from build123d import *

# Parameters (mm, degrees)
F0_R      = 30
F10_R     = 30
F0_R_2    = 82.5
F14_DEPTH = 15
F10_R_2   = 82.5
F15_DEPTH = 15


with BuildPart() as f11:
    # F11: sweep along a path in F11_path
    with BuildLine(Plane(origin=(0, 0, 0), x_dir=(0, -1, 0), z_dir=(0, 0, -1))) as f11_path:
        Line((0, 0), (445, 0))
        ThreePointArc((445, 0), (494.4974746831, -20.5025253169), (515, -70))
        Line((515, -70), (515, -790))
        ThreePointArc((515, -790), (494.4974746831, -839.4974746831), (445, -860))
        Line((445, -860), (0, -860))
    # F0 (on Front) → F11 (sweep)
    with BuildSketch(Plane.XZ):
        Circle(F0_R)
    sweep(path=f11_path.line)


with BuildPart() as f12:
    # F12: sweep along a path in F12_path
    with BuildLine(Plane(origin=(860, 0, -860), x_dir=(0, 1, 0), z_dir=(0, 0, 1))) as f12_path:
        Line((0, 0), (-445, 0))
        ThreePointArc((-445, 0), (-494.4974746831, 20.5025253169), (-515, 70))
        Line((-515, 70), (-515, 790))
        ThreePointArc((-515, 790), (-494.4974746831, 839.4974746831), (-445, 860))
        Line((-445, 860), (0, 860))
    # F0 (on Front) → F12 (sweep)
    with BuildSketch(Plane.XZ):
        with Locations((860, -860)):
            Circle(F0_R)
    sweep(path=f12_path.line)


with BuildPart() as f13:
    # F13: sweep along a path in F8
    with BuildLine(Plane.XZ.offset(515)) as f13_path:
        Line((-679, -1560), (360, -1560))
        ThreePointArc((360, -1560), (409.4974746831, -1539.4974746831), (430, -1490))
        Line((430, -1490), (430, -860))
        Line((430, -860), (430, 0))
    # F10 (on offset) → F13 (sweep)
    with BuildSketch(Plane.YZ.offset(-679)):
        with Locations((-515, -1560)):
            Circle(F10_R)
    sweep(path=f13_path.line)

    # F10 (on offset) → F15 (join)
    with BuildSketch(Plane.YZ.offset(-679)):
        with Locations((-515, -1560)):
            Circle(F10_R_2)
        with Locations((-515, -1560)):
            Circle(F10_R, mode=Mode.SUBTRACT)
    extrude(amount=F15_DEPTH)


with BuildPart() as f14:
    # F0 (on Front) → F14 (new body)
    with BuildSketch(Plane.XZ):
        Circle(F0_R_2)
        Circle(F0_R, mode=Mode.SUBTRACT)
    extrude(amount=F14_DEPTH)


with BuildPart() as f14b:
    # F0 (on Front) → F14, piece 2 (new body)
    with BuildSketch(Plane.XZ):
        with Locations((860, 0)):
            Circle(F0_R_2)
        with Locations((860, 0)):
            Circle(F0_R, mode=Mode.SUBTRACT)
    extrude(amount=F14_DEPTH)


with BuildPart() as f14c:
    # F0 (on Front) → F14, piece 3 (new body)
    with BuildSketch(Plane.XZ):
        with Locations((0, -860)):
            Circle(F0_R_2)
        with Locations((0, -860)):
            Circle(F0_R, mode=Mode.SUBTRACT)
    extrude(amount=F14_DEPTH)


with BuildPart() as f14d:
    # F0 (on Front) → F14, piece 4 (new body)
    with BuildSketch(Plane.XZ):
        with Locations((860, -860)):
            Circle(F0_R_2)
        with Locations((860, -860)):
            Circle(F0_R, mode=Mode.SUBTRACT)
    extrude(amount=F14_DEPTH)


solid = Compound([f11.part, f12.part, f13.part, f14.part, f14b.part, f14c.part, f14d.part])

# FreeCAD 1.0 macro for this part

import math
import FreeCAD as App
import Part
import Sketcher

V = App.Vector
Q = App.Units.Quantity

doc = App.newDocument("Part")
body = doc.addObject("PartDesign::Body", "Body")

# Sketch on XZ plane
sketch1 = body.newObject("Sketcher::SketchObject", "Sketch")
sketch1.AttachmentSupport = (doc.getObject("XZ_Plane"), [""])
sketch1.MapMode = "FlatFace"
sketch1.addGeometry(Part.Circle(V(0, 0, 0), V(0, 0, 1), 30), False)
sketch1.addConstraint(Sketcher.Constraint("Coincident", 0, 3, -1, 1))
sketch1.addConstraint(Sketcher.Constraint("Diameter", 0, Q("60 mm")))

# Sketch on XY plane
sketch2 = body.newObject("Sketcher::SketchObject", "Sketch001")
sketch2.AttachmentSupport = (doc.getObject("XY_Plane"), [""])
sketch2.MapMode = "FlatFace"
sketch2.addGeometry(Part.LineSegment(V(0, 0, 0), V(0, -445, 0)), False)
sketch2.addGeometry(Part.ArcOfCircle(Part.Circle(V(70, -445, 0), V(0, 0, 1), 70), math.radians(180), math.radians(270)), False)
sketch2.addGeometry(Part.LineSegment(V(70, -515, 0), V(790, -515, 0)), False)
sketch2.addGeometry(Part.ArcOfCircle(Part.Circle(V(790, -445, 0), V(0, 0, 1), 70), math.radians(-90), math.radians(0)), False)
sketch2.addGeometry(Part.LineSegment(V(860, -445, 0), V(860, 0, 0)), False)
sketch2.addConstraint(Sketcher.Constraint("Tangent", 0, 2, 1, 1))
sketch2.addConstraint(Sketcher.Constraint("Tangent", 1, 2, 2, 1))
sketch2.addConstraint(Sketcher.Constraint("Tangent", 2, 2, 3, 1))
sketch2.addConstraint(Sketcher.Constraint("Tangent", 3, 2, 4, 1))
sketch2.addConstraint(Sketcher.Constraint("Vertical", 0))
sketch2.addConstraint(Sketcher.Constraint("Horizontal", 2))
sketch2.addConstraint(Sketcher.Constraint("Vertical", 4))
sketch2.addConstraint(Sketcher.Constraint("Coincident", 0, 1, -1, 1))
sketch2.addConstraint(Sketcher.Constraint("Equal", 1, 3))
sketch2.addConstraint(Sketcher.Constraint("PointOnObject", 4, 2, -1))
sketch2.addConstraint(Sketcher.Constraint("Radius", 1, Q("70 mm")))
sketch2.addConstraint(Sketcher.Constraint("DistanceX", 2, 1, 2, 2, Q("720 mm")))
sketch2.addConstraint(Sketcher.Constraint("DistanceY", 0, 2, 0, 1, Q("445 mm")))
doc.recompute()

additivepipe = body.newObject("PartDesign::AdditivePipe", "AdditivePipe")
additivepipe.Profile = sketch1
additivepipe.Spine = (sketch2, ["Edge1", "Edge2", "Edge3", "Edge4", "Edge5"])
body2 = doc.addObject("PartDesign::Body", "Body001")

# Sketch on XZ plane
sketch3 = body2.newObject("Sketcher::SketchObject", "Sketch002")
sketch3.AttachmentSupport = (doc.getObject("XZ_Plane001"), [""])
sketch3.MapMode = "FlatFace"
sketch3.addGeometry(Part.Circle(V(860, -860, 0), V(0, 0, 1), 30), False)
sketch3.addConstraint(Sketcher.Constraint("Diameter", 0, Q("60 mm")))
sketch3.addConstraint(Sketcher.Constraint("DistanceX", -1, 1, 0, 3, Q("860 mm")))
sketch3.addConstraint(Sketcher.Constraint("DistanceY", 0, 3, -1, 1, Q("860 mm")))

# Sketch on XY plane
sketch4 = body2.newObject("Sketcher::SketchObject", "Sketch003")
sketch4.AttachmentSupport = (doc.getObject("XY_Plane001"), [""])
sketch4.MapMode = "FlatFace"
sketch4.AttachmentOffset = App.Placement(V(0, 0, -860), App.Rotation())
sketch4.addGeometry(Part.LineSegment(V(860, 0, 0), V(860, -445, 0)), False)
sketch4.addGeometry(Part.ArcOfCircle(Part.Circle(V(790, -445, 0), V(0, 0, 1), 70), math.radians(-90), math.radians(0)), False)
sketch4.addGeometry(Part.LineSegment(V(790, -515, 0), V(70, -515, 0)), False)
sketch4.addGeometry(Part.ArcOfCircle(Part.Circle(V(70, -445, 0), V(0, 0, 1), 70), math.radians(180), math.radians(270)), False)
sketch4.addGeometry(Part.LineSegment(V(0, -445, 0), V(0, 0, 0)), False)
sketch4.addConstraint(Sketcher.Constraint("Tangent", 0, 2, 1, 2))
sketch4.addConstraint(Sketcher.Constraint("Tangent", 1, 1, 2, 1))
sketch4.addConstraint(Sketcher.Constraint("Tangent", 2, 2, 3, 2))
sketch4.addConstraint(Sketcher.Constraint("Tangent", 3, 1, 4, 1))
sketch4.addConstraint(Sketcher.Constraint("Vertical", 0))
sketch4.addConstraint(Sketcher.Constraint("Horizontal", 2))
sketch4.addConstraint(Sketcher.Constraint("Vertical", 4))
sketch4.addConstraint(Sketcher.Constraint("Coincident", 4, 2, -1, 1))
sketch4.addConstraint(Sketcher.Constraint("Equal", 1, 3))
sketch4.addConstraint(Sketcher.Constraint("PointOnObject", 0, 1, -1))
sketch4.addConstraint(Sketcher.Constraint("Radius", 1, Q("70 mm")))
sketch4.addConstraint(Sketcher.Constraint("DistanceX", 2, 2, 2, 1, Q("720 mm")))
sketch4.addConstraint(Sketcher.Constraint("DistanceY", 0, 2, 0, 1, Q("445 mm")))
doc.recompute()

additivepipe2 = body2.newObject("PartDesign::AdditivePipe", "AdditivePipe001")
additivepipe2.Profile = sketch3
additivepipe2.Spine = (sketch4, ["Edge1", "Edge2", "Edge3", "Edge4", "Edge5"])
body3 = doc.addObject("PartDesign::Body", "Body002")

# Sketch on YZ plane
sketch5 = body3.newObject("Sketcher::SketchObject", "Sketch004")
sketch5.AttachmentSupport = (doc.getObject("YZ_Plane002"), [""])
sketch5.MapMode = "FlatFace"
sketch5.AttachmentOffset = App.Placement(V(0, 0, -679), App.Rotation())
sketch5.addGeometry(Part.Circle(V(-515, -1560, 0), V(0, 0, 1), 30), False)
sketch5.addConstraint(Sketcher.Constraint("Diameter", 0, Q("60 mm")))
sketch5.addConstraint(Sketcher.Constraint("DistanceX", 0, 3, -1, 1, Q("515 mm")))
sketch5.addConstraint(Sketcher.Constraint("DistanceY", 0, 3, -1, 1, Q("1560 mm")))

# Sketch on XZ plane
sketch6 = body3.newObject("Sketcher::SketchObject", "Sketch005")
sketch6.AttachmentSupport = (doc.getObject("XZ_Plane002"), [""])
sketch6.MapMode = "FlatFace"
sketch6.AttachmentOffset = App.Placement(V(0, 0, 515), App.Rotation())
sketch6.addGeometry(Part.LineSegment(V(-679, -1560, 0), V(360, -1560, 0)), False)
sketch6.addGeometry(Part.ArcOfCircle(Part.Circle(V(360, -1490, 0), V(0, 0, 1), 70), math.radians(-90), math.radians(0)), False)
sketch6.addGeometry(Part.LineSegment(V(430, -1490, 0), V(430, 0, 0)), False)
sketch6.addConstraint(Sketcher.Constraint("Tangent", 0, 2, 1, 1))
sketch6.addConstraint(Sketcher.Constraint("Tangent", 1, 2, 2, 1))
sketch6.addConstraint(Sketcher.Constraint("Horizontal", 0))
sketch6.addConstraint(Sketcher.Constraint("Vertical", 2))
sketch6.addConstraint(Sketcher.Constraint("PointOnObject", 2, 2, -1))
sketch6.addConstraint(Sketcher.Constraint("Radius", 1, Q("70 mm")))
sketch6.addConstraint(Sketcher.Constraint("DistanceX", 0, 1, 0, 2, Q("1039 mm")))
sketch6.addConstraint(Sketcher.Constraint("DistanceY", 2, 1, 2, 2, Q("1490 mm")))
sketch6.addConstraint(Sketcher.Constraint("DistanceX", -1, 1, 1, 3, Q("360 mm")))
doc.recompute()

additivepipe3 = body3.newObject("PartDesign::AdditivePipe", "AdditivePipe002")
additivepipe3.Profile = sketch5
additivepipe3.Spine = (sketch6, ["Edge1", "Edge2", "Edge3"])

# Sketch on YZ plane
sketch7 = body3.newObject("Sketcher::SketchObject", "Sketch006")
sketch7.AttachmentSupport = (doc.getObject("YZ_Plane002"), [""])
sketch7.MapMode = "FlatFace"
sketch7.AttachmentOffset = App.Placement(V(0, 0, -679), App.Rotation())
sketch7.addGeometry(Part.Circle(V(-515, -1560, 0), V(0, 0, 1), 82), False)
sketch7.addGeometry(Part.Circle(V(-515, -1560, 0), V(0, 0, 1), 30), False)
sketch7.addConstraint(Sketcher.Constraint("Coincident", 1, 3, 0, 3))
sketch7.addConstraint(Sketcher.Constraint("Diameter", 0, Q("165 mm")))
sketch7.addConstraint(Sketcher.Constraint("Diameter", 1, Q("60 mm")))
sketch7.addConstraint(Sketcher.Constraint("DistanceX", 0, 3, -1, 1, Q("515 mm")))
sketch7.addConstraint(Sketcher.Constraint("DistanceY", 0, 3, -1, 1, Q("1560 mm")))
pad1 = body3.newObject("PartDesign::Pad", "Pad")
pad1.Profile = sketch7
pad1.Length = 15
body4 = doc.addObject("PartDesign::Body", "Body003")

# Sketch on XZ plane
sketch8 = body4.newObject("Sketcher::SketchObject", "Sketch007")
sketch8.AttachmentSupport = (doc.getObject("XZ_Plane003"), [""])
sketch8.MapMode = "FlatFace"
sketch8.addGeometry(Part.Circle(V(0, 0, 0), V(0, 0, 1), 82), False)
sketch8.addGeometry(Part.Circle(V(0, 0, 0), V(0, 0, 1), 30), False)
sketch8.addConstraint(Sketcher.Constraint("Coincident", 0, 3, -1, 1))
sketch8.addConstraint(Sketcher.Constraint("Coincident", 1, 3, -1, 1))
sketch8.addConstraint(Sketcher.Constraint("Diameter", 0, Q("165 mm")))
sketch8.addConstraint(Sketcher.Constraint("Diameter", 1, Q("60 mm")))
pad2 = body4.newObject("PartDesign::Pad", "Pad001")
pad2.Profile = sketch8
pad2.Length = 15
body5 = doc.addObject("PartDesign::Body", "Body004")

# Sketch on XZ plane
sketch9 = body5.newObject("Sketcher::SketchObject", "Sketch008")
sketch9.AttachmentSupport = (doc.getObject("XZ_Plane004"), [""])
sketch9.MapMode = "FlatFace"
sketch9.addGeometry(Part.Circle(V(860, 0, 0), V(0, 0, 1), 82), False)
sketch9.addGeometry(Part.Circle(V(860, 0, 0), V(0, 0, 1), 30), False)
sketch9.addConstraint(Sketcher.Constraint("Coincident", 1, 3, 0, 3))
sketch9.addConstraint(Sketcher.Constraint("PointOnObject", 0, 3, -1))
sketch9.addConstraint(Sketcher.Constraint("Diameter", 0, Q("165 mm")))
sketch9.addConstraint(Sketcher.Constraint("Diameter", 1, Q("60 mm")))
sketch9.addConstraint(Sketcher.Constraint("DistanceX", -1, 1, 0, 3, Q("860 mm")))
pad3 = body5.newObject("PartDesign::Pad", "Pad002")
pad3.Profile = sketch9
pad3.Length = 15
body6 = doc.addObject("PartDesign::Body", "Body005")

# Sketch on XZ plane
sketch10 = body6.newObject("Sketcher::SketchObject", "Sketch009")
sketch10.AttachmentSupport = (doc.getObject("XZ_Plane005"), [""])
sketch10.MapMode = "FlatFace"
sketch10.addGeometry(Part.Circle(V(0, -860, 0), V(0, 0, 1), 82), False)
sketch10.addGeometry(Part.Circle(V(0, -860, 0), V(0, 0, 1), 30), False)
sketch10.addConstraint(Sketcher.Constraint("Coincident", 1, 3, 0, 3))
sketch10.addConstraint(Sketcher.Constraint("PointOnObject", 0, 3, -2))
sketch10.addConstraint(Sketcher.Constraint("Diameter", 0, Q("165 mm")))
sketch10.addConstraint(Sketcher.Constraint("Diameter", 1, Q("60 mm")))
sketch10.addConstraint(Sketcher.Constraint("DistanceY", 0, 3, -1, 1, Q("860 mm")))
pad4 = body6.newObject("PartDesign::Pad", "Pad003")
pad4.Profile = sketch10
pad4.Length = 15
body7 = doc.addObject("PartDesign::Body", "Body006")

# Sketch on XZ plane
sketch11 = body7.newObject("Sketcher::SketchObject", "Sketch010")
sketch11.AttachmentSupport = (doc.getObject("XZ_Plane006"), [""])
sketch11.MapMode = "FlatFace"
sketch11.addGeometry(Part.Circle(V(860, -860, 0), V(0, 0, 1), 82), False)
sketch11.addGeometry(Part.Circle(V(860, -860, 0), V(0, 0, 1), 30), False)
sketch11.addConstraint(Sketcher.Constraint("Coincident", 1, 3, 0, 3))
sketch11.addConstraint(Sketcher.Constraint("Diameter", 0, Q("165 mm")))
sketch11.addConstraint(Sketcher.Constraint("Diameter", 1, Q("60 mm")))
sketch11.addConstraint(Sketcher.Constraint("DistanceX", -1, 1, 0, 3, Q("860 mm")))
sketch11.addConstraint(Sketcher.Constraint("DistanceY", 0, 3, -1, 1, Q("860 mm")))
pad5 = body7.newObject("PartDesign::Pad", "Pad004")
pad5.Profile = sketch11
pad5.Length = 15

doc.recompute()
